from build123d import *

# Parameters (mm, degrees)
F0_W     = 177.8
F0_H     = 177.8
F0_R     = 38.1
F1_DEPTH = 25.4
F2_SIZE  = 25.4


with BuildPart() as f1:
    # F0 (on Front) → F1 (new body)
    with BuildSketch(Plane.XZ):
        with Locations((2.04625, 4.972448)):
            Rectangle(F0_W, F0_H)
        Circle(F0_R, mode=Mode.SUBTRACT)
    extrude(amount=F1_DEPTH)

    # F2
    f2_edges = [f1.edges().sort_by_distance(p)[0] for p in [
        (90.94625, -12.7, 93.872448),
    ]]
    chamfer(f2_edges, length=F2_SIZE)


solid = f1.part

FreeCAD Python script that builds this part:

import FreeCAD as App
import Part
import Sketcher
from FreeCAD import Vector
Q = App.Units.Quantity


def edges_at(feature, points):
    """Names of the edges that pass closest to the given points."""
    edges = feature.Shape.Edges
    near = lambda p: min(range(len(edges)), key=lambda i: edges[i].distToShape(Part.Vertex(*p))[0])
    return sorted({f"Edge{near(p) + 1}" for p in points})


def add_polygon(sketch, points):
    """Adds a closed chain of lines whose ends are joined by coincident constraints."""
    first, n = sketch.GeometryCount, len(points)
    for a, b in zip(points, points[1:] + points[:1]):
        sketch.addGeometry(Part.LineSegment(App.Vector(*a, 0), App.Vector(*b, 0)), False)
    for i in range(n):
        sketch.addConstraint(Sketcher.Constraint("Coincident", first + i, 2, first + (i + 1) % n, 1))

doc = App.newDocument("Part")
body = doc.addObject("PartDesign::Body", "Body")

sketch1 = body.newObject("Sketcher::SketchObject", "Sketch")
sketch1.AttachmentSupport = (doc.getObject("XZ_Plane"), [""])
sketch1.MapMode = "FlatFace"
add_polygon(sketch1, [(-87, 94), (-87, -84), (91, -84), (91, 94)])
sketch1.addGeometry(Part.Circle(Vector(0, 0, 0), Vector(0, 0, 1), 38), False)
sketch1.addConstraint(Sketcher.Constraint("Vertical", 0))
sketch1.addConstraint(Sketcher.Constraint("Horizontal", 1))
sketch1.addConstraint(Sketcher.Constraint("Vertical", 2))
sketch1.addConstraint(Sketcher.Constraint("Horizontal", 3))
sketch1.addConstraint(Sketcher.Constraint("Coincident", 4, 3, -1, 1))
sketch1.addConstraint(Sketcher.Constraint("Equal", 3, 0))
sketch1.addConstraint(Sketcher.Constraint("Diameter", 4, Q("3 in")))
sketch1.addConstraint(Sketcher.Constraint("DistanceX", 1, 1, 1, 2, Q("7 in")))
sketch1.addConstraint(Sketcher.Constraint("DistanceX", 0, 2, -1, 1, Q("86.85375 mm")))
sketch1.addConstraint(Sketcher.Constraint("DistanceY", -1, 1, 2, 2, Q("93.872448 mm")))
pad1 = body.newObject("PartDesign::Pad", "Pad")
pad1.Profile = sketch1
pad1.Length = Q("1 in")
doc.recompute()

chamfer = body.newObject("PartDesign::Chamfer", "Chamfer")
chamfer.Base = (pad1, edges_at(pad1, [(90.946, -12.7, 93.872)]))
chamfer.Size = Q("1 in")

doc.recompute()
